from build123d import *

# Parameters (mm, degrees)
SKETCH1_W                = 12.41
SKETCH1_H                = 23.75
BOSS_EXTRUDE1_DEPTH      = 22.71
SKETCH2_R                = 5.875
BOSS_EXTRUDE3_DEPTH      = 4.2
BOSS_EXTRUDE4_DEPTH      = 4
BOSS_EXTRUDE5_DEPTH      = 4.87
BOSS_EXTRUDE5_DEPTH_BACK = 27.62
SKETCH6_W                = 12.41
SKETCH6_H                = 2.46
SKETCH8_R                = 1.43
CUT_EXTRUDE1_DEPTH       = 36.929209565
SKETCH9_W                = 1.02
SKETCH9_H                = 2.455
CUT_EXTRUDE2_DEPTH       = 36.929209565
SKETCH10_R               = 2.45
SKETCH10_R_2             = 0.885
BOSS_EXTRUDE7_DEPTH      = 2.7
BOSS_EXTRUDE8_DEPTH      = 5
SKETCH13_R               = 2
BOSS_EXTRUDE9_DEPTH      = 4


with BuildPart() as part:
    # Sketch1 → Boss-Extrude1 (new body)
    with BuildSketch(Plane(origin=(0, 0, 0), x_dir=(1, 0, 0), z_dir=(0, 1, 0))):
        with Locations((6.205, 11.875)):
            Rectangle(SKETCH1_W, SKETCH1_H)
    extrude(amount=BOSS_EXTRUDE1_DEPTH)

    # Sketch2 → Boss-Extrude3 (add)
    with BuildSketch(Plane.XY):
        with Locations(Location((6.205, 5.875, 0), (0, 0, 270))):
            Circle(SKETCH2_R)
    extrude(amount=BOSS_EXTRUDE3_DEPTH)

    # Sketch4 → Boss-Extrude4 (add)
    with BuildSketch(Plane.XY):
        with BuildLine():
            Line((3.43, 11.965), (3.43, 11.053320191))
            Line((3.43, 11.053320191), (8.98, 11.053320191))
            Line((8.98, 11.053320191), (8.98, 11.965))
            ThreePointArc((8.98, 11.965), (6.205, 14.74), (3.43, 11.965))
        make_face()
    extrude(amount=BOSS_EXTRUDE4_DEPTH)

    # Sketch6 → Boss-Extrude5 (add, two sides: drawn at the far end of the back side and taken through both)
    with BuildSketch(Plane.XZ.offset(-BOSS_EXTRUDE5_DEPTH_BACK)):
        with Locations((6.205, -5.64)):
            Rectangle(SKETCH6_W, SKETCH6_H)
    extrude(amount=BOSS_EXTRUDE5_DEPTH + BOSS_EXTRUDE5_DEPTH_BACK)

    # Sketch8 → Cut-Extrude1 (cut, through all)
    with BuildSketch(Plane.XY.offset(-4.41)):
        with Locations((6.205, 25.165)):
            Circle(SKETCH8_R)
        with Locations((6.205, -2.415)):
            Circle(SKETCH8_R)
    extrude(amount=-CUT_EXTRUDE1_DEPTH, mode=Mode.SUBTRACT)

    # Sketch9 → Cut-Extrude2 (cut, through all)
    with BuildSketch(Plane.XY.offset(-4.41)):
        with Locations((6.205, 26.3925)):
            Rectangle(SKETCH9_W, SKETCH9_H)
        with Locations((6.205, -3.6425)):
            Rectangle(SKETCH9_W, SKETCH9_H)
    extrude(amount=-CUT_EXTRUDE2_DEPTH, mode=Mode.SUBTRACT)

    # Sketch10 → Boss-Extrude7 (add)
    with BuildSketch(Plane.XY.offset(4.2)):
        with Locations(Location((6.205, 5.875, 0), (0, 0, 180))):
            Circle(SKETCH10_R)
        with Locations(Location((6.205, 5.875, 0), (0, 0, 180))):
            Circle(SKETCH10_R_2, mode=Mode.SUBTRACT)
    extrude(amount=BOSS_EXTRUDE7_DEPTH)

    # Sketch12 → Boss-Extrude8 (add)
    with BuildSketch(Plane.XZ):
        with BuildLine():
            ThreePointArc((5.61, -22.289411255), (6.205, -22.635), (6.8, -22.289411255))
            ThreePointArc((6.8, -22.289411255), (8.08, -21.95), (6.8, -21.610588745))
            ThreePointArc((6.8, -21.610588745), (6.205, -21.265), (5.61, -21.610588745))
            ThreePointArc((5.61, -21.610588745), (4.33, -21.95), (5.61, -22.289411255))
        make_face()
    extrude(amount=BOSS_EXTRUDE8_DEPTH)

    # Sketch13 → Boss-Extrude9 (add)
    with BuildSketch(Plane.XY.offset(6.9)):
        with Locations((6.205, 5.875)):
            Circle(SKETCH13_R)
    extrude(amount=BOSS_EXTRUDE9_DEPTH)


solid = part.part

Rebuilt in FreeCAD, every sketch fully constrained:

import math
import FreeCAD as App
import Part
import Sketcher


def add_polygon(sketch, points):
    """Adds a closed chain of lines whose ends are joined by coincident constraints."""
    first, n = sketch.GeometryCount, len(points)
    for a, b in zip(points, points[1:] + points[:1]):
        sketch.addGeometry(Part.LineSegment(App.Vector(*a, 0), App.Vector(*b, 0)), False)
    for i in range(n):
        sketch.addConstraint(Sketcher.Constraint("Coincident", first + i, 2, first + (i + 1) % n, 1))

doc = App.newDocument("Part")
params = doc.addObject("Spreadsheet::Sheet", "Params")
for row, (alias, value) in enumerate([
    ("sketch1_width", "12.41 mm"),
    ("sketch1_height", "23.75 mm"),
    ("pad1_length", "22.71 mm"),
    ("sketch2_diameter", "11.75 mm"),
    ("pad2_length", "4.2 mm"),
    ("pad3_length", "4 mm"),
    ("sketch4_width", "12.41 mm"),
    ("sketch4_height", "2.46 mm"),
    ("pad4_length", "4.87 mm"),
    ("pad4_length2", "27.62 mm"),
    ("sketch5_diameter", "2.86 mm"),
    ("sketch6_width", "1.02 mm"),
    ("sketch7_diameter", "4.9 mm"),
    ("sketch7_diameter2", "1.77 mm"),
    ("pad5_length", "2.7 mm"),
    ("pad6_length", "5 mm"),
    ("sketch9_diameter", "4 mm"),
    ("pad7_length", "4 mm"),
], start=1):
    params.set(f"A{row}", alias)
    params.set(f"B{row}", "=" + value)
    params.setAlias(f"B{row}", alias)

body = doc.addObject("PartDesign::Body", "Body")

# Sketch on XZ plane
sketch1 = body.newObject("Sketcher::SketchObject", "Sketch")
sketch1.AttachmentSupport = (doc.getObject("XZ_Plane"), [""])
sketch1.MapMode = "FlatFace"
add_polygon(sketch1, [(0, -24), (0, 0), (12, 0), (12, -24)])  # lines 0-3
sketch1.addConstraint(Sketcher.Constraint("Vertical", 0))
sketch1.addConstraint(Sketcher.Constraint("Horizontal", 1))
sketch1.addConstraint(Sketcher.Constraint("Vertical", 2))
sketch1.addConstraint(Sketcher.Constraint("Horizontal", 3))
sketch1.addConstraint(Sketcher.Constraint("Coincident", 0, 2, -1, 1))
sketch1.addConstraint(Sketcher.Constraint("DistanceX", 1, 1, 1, 2, 12.41))
sketch1.addConstraint(Sketcher.Constraint("DistanceY", 0, 1, 0, 2, 23.75))
sketch1.setExpression("Constraints[9]", "Params.sketch1_width")
sketch1.setExpression("Constraints[10]", "Params.sketch1_height")
pad1 = body.newObject("PartDesign::Pad", "Pad")
pad1.Profile = sketch1
pad1.setExpression("Length", "Params.pad1_length")
pad1.Reversed = True

# Sketch on XY plane
sketch2 = body.newObject("Sketcher::SketchObject", "Sketch001")
sketch2.AttachmentSupport = (doc.getObject("XY_Plane"), [""])
sketch2.MapMode = "FlatFace"
sketch2.addGeometry(Part.Circle(App.Vector(6, 6, 0), App.Vector(0, 0, 1), 6), False)
sketch2.addConstraint(Sketcher.Constraint("Diameter", 0, 11.75))
sketch2.addConstraint(Sketcher.Constraint("DistanceX", -1, 1, 0, 3, 6.205))
sketch2.addConstraint(Sketcher.Constraint("DistanceY", -1, 1, 0, 3, 5.875))
sketch2.setExpression("Constraints[0]", "Params.sketch2_diameter")
pad2 = body.newObject("PartDesign::Pad", "Pad001")
pad2.Profile = sketch2
pad2.setExpression("Length", "Params.pad2_length")

# Sketch on XY plane
sketch3 = body.newObject("Sketcher::SketchObject", "Sketch002")
sketch3.AttachmentSupport = (doc.getObject("XY_Plane"), [""])
sketch3.MapMode = "FlatFace"
sketch3.addGeometry(Part.LineSegment(App.Vector(3.4, 12, 0), App.Vector(3.4, 11.1, 0)), False)
sketch3.addGeometry(Part.LineSegment(App.Vector(3.4, 11.1, 0), App.Vector(9, 11.1, 0)), False)
sketch3.addGeometry(Part.LineSegment(App.Vector(9, 11.1, 0), App.Vector(9, 12, 0)), False)
sketch3.addGeometry(Part.ArcOfCircle(Part.Circle(App.Vector(6.2, 12, 0), App.Vector(0, 0, 1), 2.8), math.radians(0), math.radians(180)), False)
sketch3.addConstraint(Sketcher.Constraint("Coincident", 0, 2, 1, 1))
sketch3.addConstraint(Sketcher.Constraint("Coincident", 1, 2, 2, 1))
sketch3.addConstraint(Sketcher.Constraint("Tangent", 2, 2, 3, 1))
sketch3.addConstraint(Sketcher.Constraint("Tangent", 3, 2, 0, 1))
sketch3.addConstraint(Sketcher.Constraint("Vertical", 0))
sketch3.addConstraint(Sketcher.Constraint("Horizontal", 1))
sketch3.addConstraint(Sketcher.Constraint("Vertical", 2))
sketch3.addConstraint(Sketcher.Constraint("Radius", 3, 2.775))
sketch3.addConstraint(Sketcher.Constraint("DistanceX", -1, 1, 0, 2, 3.43))
sketch3.addConstraint(Sketcher.Constraint("DistanceY", -1, 1, 3, 3, 11.965))
sketch3.addConstraint(Sketcher.Constraint("DistanceY", 0, 2, 0, 1, 0.91168))
pad3 = body.newObject("PartDesign::Pad", "Pad002")
pad3.Profile = sketch3
pad3.setExpression("Length", "Params.pad3_length")

# Sketch on XZ plane
sketch4 = body.newObject("Sketcher::SketchObject", "Sketch003")
sketch4.AttachmentSupport = (doc.getObject("XZ_Plane"), [""])
sketch4.MapMode = "FlatFace"
add_polygon(sketch4, [(0, -4.4), (0, -6.9), (12.4, -6.9), (12.4, -4.4)])  # lines 0-3
sketch4.addConstraint(Sketcher.Constraint("Vertical", 0))
sketch4.addConstraint(Sketcher.Constraint("Horizontal", 1))
sketch4.addConstraint(Sketcher.Constraint("Vertical", 2))
sketch4.addConstraint(Sketcher.Constraint("Horizontal", 3))
sketch4.addConstraint(Sketcher.Constraint("PointOnObject", 0, 2, -2))
sketch4.addConstraint(Sketcher.Constraint("DistanceX", 1, 1, 1, 2, 12.41))
sketch4.addConstraint(Sketcher.Constraint("DistanceY", 0, 2, 0, 1, 2.46))
sketch4.addConstraint(Sketcher.Constraint("DistanceY", 0, 2, -1, 1, 6.87))
sketch4.setExpression("Constraints[9]", "Params.sketch4_width")
sketch4.setExpression("Constraints[10]", "Params.sketch4_height")
pad4 = body.newObject("PartDesign::Pad", "Pad003")
pad4.Profile = sketch4
pad4.Type = "TwoLengths"
pad4.setExpression("Length", "Params.pad4_length")
pad4.setExpression("Length2", "Params.pad4_length2")

# Sketch on XY plane
sketch5 = body.newObject("Sketcher::SketchObject", "Sketch004")
sketch5.AttachmentSupport = (doc.getObject("XY_Plane"), [""])
sketch5.MapMode = "FlatFace"
sketch5.AttachmentOffset = App.Placement(App.Vector(0, 0, -4.41), App.Rotation())
sketch5.addGeometry(Part.Circle(App.Vector(6.2, 25.2, 0), App.Vector(0, 0, 1), 1.4), False)
sketch5.addGeometry(Part.Circle(App.Vector(6.2, -2.4, 0), App.Vector(0, 0, 1), 1.4), False)
sketch5.addConstraint(Sketcher.Constraint("Equal", 0, 1))
sketch5.addConstraint(Sketcher.Constraint("Vertical", 0, 3, 1, 3))
sketch5.addConstraint(Sketcher.Constraint("Diameter", 0, 2.86))
sketch5.addConstraint(Sketcher.Constraint("DistanceY", 1, 3, 0, 3, 27.58))
sketch5.addConstraint(Sketcher.Constraint("DistanceX", -1, 1, 0, 3, 6.205))
sketch5.addConstraint(Sketcher.Constraint("DistanceY", -1, 1, 0, 3, 25.165))
sketch5.setExpression("Constraints[2]", "Params.sketch5_diameter")
pocket1 = body.newObject("PartDesign::Pocket", "Pocket")
pocket1.Profile = sketch5
pocket1.Type = "ThroughAll"

# Sketch on XY plane
sketch6 = body.newObject("Sketcher::SketchObject", "Sketch005")
sketch6.AttachmentSupport = (doc.getObject("XY_Plane"), [""])
sketch6.MapMode = "FlatFace"
sketch6.AttachmentOffset = App.Placement(App.Vector(0, 0, -4.41), App.Rotation())
add_polygon(sketch6, [(5.7, 27.6), (5.7, 25.2), (6.7, 25.2), (6.7, 27.6)])  # lines 0-3
add_polygon(sketch6, [(5.7, -2.4), (5.7, -4.9), (6.7, -4.9), (6.7, -2.4)])  # lines 4-7
sketch6.addConstraint(Sketcher.Constraint("Vertical", 0))
sketch6.addConstraint(Sketcher.Constraint("Horizontal", 1))
sketch6.addConstraint(Sketcher.Constraint("Vertical", 2))
sketch6.addConstraint(Sketcher.Constraint("Horizontal", 3))
sketch6.addConstraint(Sketcher.Constraint("Vertical", 4))
sketch6.addConstraint(Sketcher.Constraint("Horizontal", 5))
sketch6.addConstraint(Sketcher.Constraint("Vertical", 6))
sketch6.addConstraint(Sketcher.Constraint("Horizontal", 7))
sketch6.addConstraint(Sketcher.Constraint("Vertical", 3, 2, 4, 2))
sketch6.addConstraint(Sketcher.Constraint("Vertical", 2, 2, 5, 2))
sketch6.addConstraint(Sketcher.Constraint("Equal", 2, 4))
sketch6.addConstraint(Sketcher.Constraint("DistanceX", 1, 1, 1, 2, 1.02))
sketch6.addConstraint(Sketcher.Constraint("DistanceY", 0, 2, 0, 1, 2.455))
sketch6.addConstraint(Sketcher.Constraint("DistanceY", -1, 1, 2, 2, 27.62))
sketch6.addConstraint(Sketcher.Constraint("DistanceY", 4, 2, -1, 1, 4.87))
sketch6.addConstraint(Sketcher.Constraint("DistanceX", -1, 1, 0, 2, 5.695))
sketch6.setExpression("Constraints[19]", "Params.sketch6_width")
pocket2 = body.newObject("PartDesign::Pocket", "Pocket001")
pocket2.Profile = sketch6
pocket2.Type = "ThroughAll"

# Sketch on XY plane
sketch7 = body.newObject("Sketcher::SketchObject", "Sketch006")
sketch7.AttachmentSupport = (doc.getObject("XY_Plane"), [""])
sketch7.MapMode = "FlatFace"
sketch7.AttachmentOffset = App.Placement(App.Vector(0, 0, 4.2), App.Rotation())
sketch7.addGeometry(Part.Circle(App.Vector(6.2, 5.9, 0), App.Vector(0, 0, 1), 2.5), False)
sketch7.addGeometry(Part.Circle(App.Vector(6.2, 5.9, 0), App.Vector(0, 0, 1), 0.9), False)
sketch7.addConstraint(Sketcher.Constraint("Coincident", 1, 3, 0, 3))
sketch7.addConstraint(Sketcher.Constraint("Diameter", 0, 4.9))
sketch7.addConstraint(Sketcher.Constraint("Diameter", 1, 1.77))
sketch7.addConstraint(Sketcher.Constraint("DistanceX", -1, 1, 0, 3, 6.205))
sketch7.addConstraint(Sketcher.Constraint("DistanceY", -1, 1, 0, 3, 5.875))
sketch7.setExpression("Constraints[1]", "Params.sketch7_diameter")
sketch7.setExpression("Constraints[2]", "Params.sketch7_diameter2")
pad5 = body.newObject("PartDesign::Pad", "Pad004")
pad5.Profile = sketch7
pad5.setExpression("Length", "Params.pad5_length")

# Sketch on XZ plane
sketch8 = body.newObject("Sketcher::SketchObject", "Sketch007")
sketch8.AttachmentSupport = (doc.getObject("XZ_Plane"), [""])
sketch8.MapMode = "FlatFace"
sketch8.addGeometry(Part.ArcOfCircle(Part.Circle(App.Vector(6.2, -21.9, 0), App.Vector(0, 0, 1), 0.7), math.radians(-150), math.radians(-30)), False)
sketch8.addGeometry(Part.ArcOfCircle(Part.Circle(App.Vector(7.4, -21.9, 0), App.Vector(0, 0, 1), 0.7), math.radians(-150), math.radians(150)), False)
sketch8.addGeometry(Part.ArcOfCircle(Part.Circle(App.Vector(6.2, -21.9, 0), App.Vector(0, 0, 1), 0.7), math.radians(30), math.radians(150)), False)
sketch8.addGeometry(Part.ArcOfCircle(Part.Circle(App.Vector(5, -21.9, 0), App.Vector(0, 0, 1), 0.7), math.radians(30), math.radians(330)), False)
sketch8.addConstraint(Sketcher.Constraint("Coincident", 0, 2, 1, 1))
sketch8.addConstraint(Sketcher.Constraint("Coincident", 1, 2, 2, 1))
sketch8.addConstraint(Sketcher.Constraint("Coincident", 2, 2, 3, 1))
sketch8.addConstraint(Sketcher.Constraint("Coincident", 3, 2, 0, 1))
sketch8.addConstraint(Sketcher.Constraint("Coincident", 2, 3, 0, 3))
sketch8.addConstraint(Sketcher.Constraint("Equal", 0, 1))
sketch8.addConstraint(Sketcher.Constraint("Equal", 1, 2))
sketch8.addConstraint(Sketcher.Constraint("Equal", 2, 3))
sketch8.addConstraint(Sketcher.Constraint("Horizontal", 0, 3, 1, 3))
sketch8.addConstraint(Sketcher.Constraint("Horizontal", 2, 3, 3, 3))
sketch8.addConstraint(Sketcher.Constraint("Horizontal", 1, 2, 2, 2))
sketch8.addConstraint(Sketcher.Constraint("Radius", 0, 0.685))
sketch8.addConstraint(Sketcher.Constraint("DistanceX", -1, 1, 0, 2, 6.8))
sketch8.addConstraint(Sketcher.Constraint("DistanceY", 0, 3, -1, 1, 21.95))
sketch8.addConstraint(Sketcher.Constraint("DistanceX", -1, 1, 2, 2, 5.61))
pad6 = body.newObject("PartDesign::Pad", "Pad005")
pad6.Profile = sketch8
pad6.setExpression("Length", "Params.pad6_length")

# Sketch on XY plane
sketch9 = body.newObject("Sketcher::SketchObject", "Sketch008")
sketch9.AttachmentSupport = (doc.getObject("XY_Plane"), [""])
sketch9.MapMode = "FlatFace"
sketch9.AttachmentOffset = App.Placement(App.Vector(0, 0, 6.9), App.Rotation())
sketch9.addGeometry(Part.Circle(App.Vector(6.2, 5.9, 0), App.Vector(0, 0, 1), 2), False)
sketch9.addConstraint(Sketcher.Constraint("Diameter", 0, 4.0))
sketch9.addConstraint(Sketcher.Constraint("DistanceX", -1, 1, 0, 3, 6.205))
sketch9.addConstraint(Sketcher.Constraint("DistanceY", -1, 1, 0, 3, 5.875))
sketch9.setExpression("Constraints[0]", "Params.sketch9_diameter")
pad7 = body.newObject("PartDesign::Pad", "Pad006")
pad7.Profile = sketch9
pad7.setExpression("Length", "Params.pad7_length")

doc.recompute()
